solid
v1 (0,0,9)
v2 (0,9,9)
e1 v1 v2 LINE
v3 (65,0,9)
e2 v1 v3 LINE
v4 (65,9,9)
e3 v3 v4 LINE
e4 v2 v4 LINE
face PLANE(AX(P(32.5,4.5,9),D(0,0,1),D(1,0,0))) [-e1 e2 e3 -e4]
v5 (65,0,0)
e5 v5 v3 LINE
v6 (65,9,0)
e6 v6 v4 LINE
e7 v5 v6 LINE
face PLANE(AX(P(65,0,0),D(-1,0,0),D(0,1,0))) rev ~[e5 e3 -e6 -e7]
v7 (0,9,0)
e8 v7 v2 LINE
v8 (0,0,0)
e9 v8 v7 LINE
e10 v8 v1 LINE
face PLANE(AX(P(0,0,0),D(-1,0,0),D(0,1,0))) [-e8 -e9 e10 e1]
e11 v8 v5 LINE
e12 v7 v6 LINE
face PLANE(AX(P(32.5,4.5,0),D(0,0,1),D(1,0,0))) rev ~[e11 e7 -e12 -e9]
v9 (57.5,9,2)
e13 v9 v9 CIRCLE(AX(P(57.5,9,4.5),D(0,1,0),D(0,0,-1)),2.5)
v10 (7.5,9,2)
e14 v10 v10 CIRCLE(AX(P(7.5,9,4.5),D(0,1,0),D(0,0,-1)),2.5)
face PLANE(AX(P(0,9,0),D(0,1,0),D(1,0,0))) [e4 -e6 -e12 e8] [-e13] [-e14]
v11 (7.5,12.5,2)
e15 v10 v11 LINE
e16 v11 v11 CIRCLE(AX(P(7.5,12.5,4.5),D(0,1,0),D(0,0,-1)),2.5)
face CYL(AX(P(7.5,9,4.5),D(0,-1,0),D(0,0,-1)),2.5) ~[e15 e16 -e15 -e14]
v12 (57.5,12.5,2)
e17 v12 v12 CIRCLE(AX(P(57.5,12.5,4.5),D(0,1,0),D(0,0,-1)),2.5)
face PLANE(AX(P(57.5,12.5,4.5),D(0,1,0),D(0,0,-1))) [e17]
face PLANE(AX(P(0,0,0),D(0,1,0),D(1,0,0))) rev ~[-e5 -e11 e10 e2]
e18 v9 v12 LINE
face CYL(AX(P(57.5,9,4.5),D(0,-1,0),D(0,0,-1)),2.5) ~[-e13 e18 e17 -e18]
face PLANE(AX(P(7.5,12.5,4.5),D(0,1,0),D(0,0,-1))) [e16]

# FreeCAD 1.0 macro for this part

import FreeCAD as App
import Part
import Sketcher


def add_polygon(sketch, points):
    """Adds a closed chain of lines whose ends are joined by coincident constraints."""
    first, n = sketch.GeometryCount, len(points)
    for a, b in zip(points, points[1:] + points[:1]):
        sketch.addGeometry(Part.LineSegment(App.Vector(*a, 0), App.Vector(*b, 0)), False)
    for i in range(n):
        sketch.addConstraint(Sketcher.Constraint("Coincident", first + i, 2, first + (i + 1) % n, 1))

doc = App.newDocument("Part")
body = doc.addObject("PartDesign::Body", "Body")

# Sketch on XY plane
sketch1 = body.newObject("Sketcher::SketchObject", "Sketch")
sketch1.AttachmentSupport = (doc.getObject("XY_Plane"), [""])
sketch1.MapMode = "FlatFace"
add_polygon(sketch1, [(0, 9), (0, 0), (65, 0), (65, 9)])  # lines 0-3
sketch1.addConstraint(Sketcher.Constraint("Vertical", 0))
sketch1.addConstraint(Sketcher.Constraint("Horizontal", 1))
sketch1.addConstraint(Sketcher.Constraint("Vertical", 2))
sketch1.addConstraint(Sketcher.Constraint("Horizontal", 3))
sketch1.addConstraint(Sketcher.Constraint("Coincident", 0, 2, -1, 1))
sketch1.addConstraint(Sketcher.Constraint("DistanceX", 1, 1, 1, 2, 65.0))
sketch1.addConstraint(Sketcher.Constraint("DistanceY", 0, 2, 0, 1, 9.0))
pad1 = body.newObject("PartDesign::Pad", "Pad")
pad1.Profile = sketch1
pad1.Length = 9

# Sketch on XZ plane
sketch2 = body.newObject("Sketcher::SketchObject", "Sketch001")
sketch2.AttachmentSupport = (doc.getObject("XZ_Plane"), [""])
sketch2.MapMode = "FlatFace"
sketch2.AttachmentOffset = App.Placement(App.Vector(0, 0, -9), App.Rotation())
sketch2.addGeometry(Part.Circle(App.Vector(57.5, 4.5, 0), App.Vector(0, 0, 1), 2.5), False)
sketch2.addGeometry(Part.Circle(App.Vector(7.5, 4.5, 0), App.Vector(0, 0, 1), 2.5), False)
sketch2.addConstraint(Sketcher.Constraint("Equal", 0, 1))
sketch2.addConstraint(Sketcher.Constraint("Horizontal", 0, 3, 1, 3))
sketch2.addConstraint(Sketcher.Constraint("Diameter", 0, 5.0))
sketch2.addConstraint(Sketcher.Constraint("DistanceX", 1, 3, 0, 3, 50.0))
sketch2.addConstraint(Sketcher.Constraint("DistanceX", -1, 1, 0, 3, 57.5))
sketch2.addConstraint(Sketcher.Constraint("DistanceY", -1, 1, 0, 3, 4.5))
pad2 = body.newObject("PartDesign::Pad", "Pad001")
pad2.Profile = sketch2
pad2.Length = 3.5
pad2.Reversed = True

doc.recompute()
